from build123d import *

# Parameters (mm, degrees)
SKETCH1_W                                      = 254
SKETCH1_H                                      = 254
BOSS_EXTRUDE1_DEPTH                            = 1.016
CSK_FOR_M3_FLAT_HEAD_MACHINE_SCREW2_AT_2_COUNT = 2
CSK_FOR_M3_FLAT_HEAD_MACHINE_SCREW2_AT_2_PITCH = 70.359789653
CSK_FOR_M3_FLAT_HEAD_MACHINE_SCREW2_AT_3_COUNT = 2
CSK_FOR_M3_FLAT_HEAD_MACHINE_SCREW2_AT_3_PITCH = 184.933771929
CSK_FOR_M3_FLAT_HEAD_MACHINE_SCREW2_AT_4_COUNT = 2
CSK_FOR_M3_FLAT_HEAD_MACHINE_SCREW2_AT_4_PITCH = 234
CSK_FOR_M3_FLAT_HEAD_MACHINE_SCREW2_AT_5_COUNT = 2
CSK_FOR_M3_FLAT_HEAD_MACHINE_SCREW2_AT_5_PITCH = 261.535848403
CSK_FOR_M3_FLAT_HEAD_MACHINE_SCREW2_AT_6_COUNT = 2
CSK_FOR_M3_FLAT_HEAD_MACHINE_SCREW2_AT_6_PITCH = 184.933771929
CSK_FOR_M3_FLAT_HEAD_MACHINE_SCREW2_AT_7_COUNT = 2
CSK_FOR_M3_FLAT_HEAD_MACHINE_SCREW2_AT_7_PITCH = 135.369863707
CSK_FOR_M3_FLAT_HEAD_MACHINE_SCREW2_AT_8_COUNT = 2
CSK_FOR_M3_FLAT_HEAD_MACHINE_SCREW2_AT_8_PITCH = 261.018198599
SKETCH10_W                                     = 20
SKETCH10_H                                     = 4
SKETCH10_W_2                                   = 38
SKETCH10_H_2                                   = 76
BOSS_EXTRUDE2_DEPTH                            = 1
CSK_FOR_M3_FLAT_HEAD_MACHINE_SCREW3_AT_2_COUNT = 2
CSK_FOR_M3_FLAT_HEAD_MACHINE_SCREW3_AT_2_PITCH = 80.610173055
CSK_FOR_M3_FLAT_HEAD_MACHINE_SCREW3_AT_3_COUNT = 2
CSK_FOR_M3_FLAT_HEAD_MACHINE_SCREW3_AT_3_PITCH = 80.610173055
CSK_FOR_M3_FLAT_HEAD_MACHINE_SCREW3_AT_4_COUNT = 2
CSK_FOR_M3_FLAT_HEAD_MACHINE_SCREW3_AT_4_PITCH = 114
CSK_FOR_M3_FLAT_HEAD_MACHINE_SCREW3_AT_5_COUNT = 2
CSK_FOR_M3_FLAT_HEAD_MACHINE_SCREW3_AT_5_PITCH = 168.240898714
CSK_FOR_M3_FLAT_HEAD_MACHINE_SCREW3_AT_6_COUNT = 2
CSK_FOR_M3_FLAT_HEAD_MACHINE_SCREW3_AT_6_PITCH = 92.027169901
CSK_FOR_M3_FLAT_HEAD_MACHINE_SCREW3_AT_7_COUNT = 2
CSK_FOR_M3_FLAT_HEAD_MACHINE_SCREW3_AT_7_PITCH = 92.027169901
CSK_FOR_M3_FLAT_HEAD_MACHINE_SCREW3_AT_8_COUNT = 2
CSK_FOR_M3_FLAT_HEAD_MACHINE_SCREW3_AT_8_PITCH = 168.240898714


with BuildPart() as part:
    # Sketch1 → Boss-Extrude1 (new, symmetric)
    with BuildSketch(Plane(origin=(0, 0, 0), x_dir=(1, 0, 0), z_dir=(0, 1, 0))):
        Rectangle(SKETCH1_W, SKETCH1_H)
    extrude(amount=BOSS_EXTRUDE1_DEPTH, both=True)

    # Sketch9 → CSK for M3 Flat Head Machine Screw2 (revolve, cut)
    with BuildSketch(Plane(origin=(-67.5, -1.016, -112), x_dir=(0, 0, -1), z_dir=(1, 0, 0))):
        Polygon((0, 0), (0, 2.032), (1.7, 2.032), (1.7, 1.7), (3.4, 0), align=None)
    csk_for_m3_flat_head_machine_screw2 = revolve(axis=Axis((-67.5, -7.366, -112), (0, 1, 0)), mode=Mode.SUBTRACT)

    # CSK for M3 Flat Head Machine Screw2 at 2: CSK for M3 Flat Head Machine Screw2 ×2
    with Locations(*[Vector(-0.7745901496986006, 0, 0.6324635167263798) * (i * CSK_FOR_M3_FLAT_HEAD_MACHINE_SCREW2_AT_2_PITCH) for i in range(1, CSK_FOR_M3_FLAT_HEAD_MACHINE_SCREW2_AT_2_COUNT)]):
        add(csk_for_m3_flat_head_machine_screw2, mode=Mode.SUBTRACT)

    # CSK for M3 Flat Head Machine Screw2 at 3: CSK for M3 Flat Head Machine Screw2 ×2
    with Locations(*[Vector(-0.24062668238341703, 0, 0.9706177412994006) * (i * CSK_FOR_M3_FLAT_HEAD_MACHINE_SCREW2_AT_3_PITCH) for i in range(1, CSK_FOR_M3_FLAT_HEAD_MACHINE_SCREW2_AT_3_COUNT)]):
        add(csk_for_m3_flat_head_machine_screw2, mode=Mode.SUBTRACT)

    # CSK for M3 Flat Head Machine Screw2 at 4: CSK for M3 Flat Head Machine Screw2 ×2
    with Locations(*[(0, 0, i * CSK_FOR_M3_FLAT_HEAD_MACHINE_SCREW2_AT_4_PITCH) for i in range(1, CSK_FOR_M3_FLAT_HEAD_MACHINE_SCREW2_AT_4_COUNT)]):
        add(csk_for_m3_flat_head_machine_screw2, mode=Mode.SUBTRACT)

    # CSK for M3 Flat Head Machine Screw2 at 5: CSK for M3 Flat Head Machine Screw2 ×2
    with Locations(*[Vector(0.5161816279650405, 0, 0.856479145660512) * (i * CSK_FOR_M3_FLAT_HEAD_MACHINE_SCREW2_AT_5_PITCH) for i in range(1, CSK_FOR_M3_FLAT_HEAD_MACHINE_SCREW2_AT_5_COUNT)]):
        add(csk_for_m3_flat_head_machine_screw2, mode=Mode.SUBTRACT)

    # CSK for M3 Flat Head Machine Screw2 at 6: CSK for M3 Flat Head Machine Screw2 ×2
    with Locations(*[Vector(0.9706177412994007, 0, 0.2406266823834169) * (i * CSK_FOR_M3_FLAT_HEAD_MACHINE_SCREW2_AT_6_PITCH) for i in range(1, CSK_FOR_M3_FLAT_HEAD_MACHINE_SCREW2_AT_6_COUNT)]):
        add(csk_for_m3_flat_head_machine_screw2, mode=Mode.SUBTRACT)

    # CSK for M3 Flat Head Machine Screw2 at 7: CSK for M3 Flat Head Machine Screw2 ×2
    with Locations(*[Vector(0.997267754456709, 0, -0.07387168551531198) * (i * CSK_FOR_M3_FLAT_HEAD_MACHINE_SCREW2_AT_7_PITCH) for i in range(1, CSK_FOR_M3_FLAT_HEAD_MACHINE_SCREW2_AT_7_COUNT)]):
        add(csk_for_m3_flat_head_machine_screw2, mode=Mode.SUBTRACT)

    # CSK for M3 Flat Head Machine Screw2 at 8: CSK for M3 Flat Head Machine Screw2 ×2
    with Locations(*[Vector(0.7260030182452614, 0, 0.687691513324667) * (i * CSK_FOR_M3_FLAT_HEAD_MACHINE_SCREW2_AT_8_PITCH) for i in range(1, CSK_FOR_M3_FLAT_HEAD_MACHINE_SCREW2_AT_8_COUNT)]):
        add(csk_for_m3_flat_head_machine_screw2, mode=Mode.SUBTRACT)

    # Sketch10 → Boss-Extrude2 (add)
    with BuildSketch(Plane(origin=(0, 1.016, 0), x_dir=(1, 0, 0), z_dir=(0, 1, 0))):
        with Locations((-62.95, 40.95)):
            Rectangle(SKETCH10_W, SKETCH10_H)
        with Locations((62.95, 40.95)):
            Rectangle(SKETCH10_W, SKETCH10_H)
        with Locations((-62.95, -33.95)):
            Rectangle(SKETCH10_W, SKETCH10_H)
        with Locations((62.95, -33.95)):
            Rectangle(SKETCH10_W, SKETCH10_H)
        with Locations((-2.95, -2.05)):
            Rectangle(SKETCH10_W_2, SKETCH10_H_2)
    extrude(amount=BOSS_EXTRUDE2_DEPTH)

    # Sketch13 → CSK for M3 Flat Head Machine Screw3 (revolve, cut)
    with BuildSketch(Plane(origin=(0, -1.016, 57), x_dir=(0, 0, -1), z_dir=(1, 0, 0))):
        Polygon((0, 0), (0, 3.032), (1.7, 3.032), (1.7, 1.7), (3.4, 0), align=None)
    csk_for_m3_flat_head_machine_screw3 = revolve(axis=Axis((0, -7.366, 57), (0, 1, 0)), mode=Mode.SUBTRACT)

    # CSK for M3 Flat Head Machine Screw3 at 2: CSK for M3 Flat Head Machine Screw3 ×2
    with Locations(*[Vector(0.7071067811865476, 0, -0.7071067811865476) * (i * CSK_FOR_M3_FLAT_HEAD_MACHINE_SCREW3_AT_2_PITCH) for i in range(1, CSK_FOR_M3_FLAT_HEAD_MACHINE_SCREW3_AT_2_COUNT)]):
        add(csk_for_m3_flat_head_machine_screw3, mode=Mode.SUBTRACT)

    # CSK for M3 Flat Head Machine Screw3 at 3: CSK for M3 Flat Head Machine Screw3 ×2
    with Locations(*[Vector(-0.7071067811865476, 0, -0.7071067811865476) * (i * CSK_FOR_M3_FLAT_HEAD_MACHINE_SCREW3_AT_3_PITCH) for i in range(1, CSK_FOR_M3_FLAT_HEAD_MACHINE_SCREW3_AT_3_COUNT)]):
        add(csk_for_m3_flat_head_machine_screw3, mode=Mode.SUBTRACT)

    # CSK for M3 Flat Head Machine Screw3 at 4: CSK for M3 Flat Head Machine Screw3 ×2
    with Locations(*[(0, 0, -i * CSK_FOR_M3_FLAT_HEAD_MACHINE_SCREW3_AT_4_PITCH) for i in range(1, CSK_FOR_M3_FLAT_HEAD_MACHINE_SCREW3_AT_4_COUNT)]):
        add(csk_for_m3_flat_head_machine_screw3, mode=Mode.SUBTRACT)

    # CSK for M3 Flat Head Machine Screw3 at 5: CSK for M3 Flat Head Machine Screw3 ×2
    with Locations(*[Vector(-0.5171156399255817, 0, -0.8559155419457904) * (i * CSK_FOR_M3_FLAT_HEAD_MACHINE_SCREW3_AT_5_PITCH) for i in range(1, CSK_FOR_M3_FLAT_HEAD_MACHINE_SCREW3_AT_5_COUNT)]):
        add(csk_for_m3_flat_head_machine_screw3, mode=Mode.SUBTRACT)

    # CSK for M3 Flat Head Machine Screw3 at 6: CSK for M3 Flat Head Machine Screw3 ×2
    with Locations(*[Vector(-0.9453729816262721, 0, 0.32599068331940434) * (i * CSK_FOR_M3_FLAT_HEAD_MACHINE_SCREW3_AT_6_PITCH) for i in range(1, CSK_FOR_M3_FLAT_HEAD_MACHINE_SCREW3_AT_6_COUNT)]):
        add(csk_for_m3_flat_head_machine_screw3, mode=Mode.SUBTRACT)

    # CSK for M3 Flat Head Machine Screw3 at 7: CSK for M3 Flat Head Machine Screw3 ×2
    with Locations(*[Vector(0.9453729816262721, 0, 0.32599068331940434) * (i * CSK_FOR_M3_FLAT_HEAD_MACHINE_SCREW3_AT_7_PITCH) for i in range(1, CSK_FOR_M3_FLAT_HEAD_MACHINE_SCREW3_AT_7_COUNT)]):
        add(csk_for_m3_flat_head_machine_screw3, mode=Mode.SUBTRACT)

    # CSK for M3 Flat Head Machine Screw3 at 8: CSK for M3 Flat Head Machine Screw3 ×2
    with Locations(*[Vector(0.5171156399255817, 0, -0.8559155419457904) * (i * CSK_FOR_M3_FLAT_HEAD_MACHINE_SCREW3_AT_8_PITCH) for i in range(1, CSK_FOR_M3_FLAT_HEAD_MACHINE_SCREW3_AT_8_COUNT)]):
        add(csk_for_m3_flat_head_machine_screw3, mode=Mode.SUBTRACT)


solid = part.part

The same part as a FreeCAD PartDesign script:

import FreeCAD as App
import Part
import Sketcher

V = App.Vector
Q = App.Units.Quantity


def add_polygon(sketch, points):
    """Adds a closed chain of lines whose ends are joined by coincident constraints."""
    first, n = sketch.GeometryCount, len(points)
    for a, b in zip(points, points[1:] + points[:1]):
        sketch.addGeometry(Part.LineSegment(App.Vector(*a, 0), App.Vector(*b, 0)), False)
    for i in range(n):
        sketch.addConstraint(Sketcher.Constraint("Coincident", first + i, 2, first + (i + 1) % n, 1))

doc = App.newDocument("Part")
body = doc.addObject("PartDesign::Body", "Body")

sketch1 = body.newObject("Sketcher::SketchObject", "Sketch")
sketch1.AttachmentSupport = (doc.getObject("XZ_Plane"), [""])
sketch1.MapMode = "FlatFace"
add_polygon(sketch1, [(-127, -127), (-127, 127), (127, 127), (127, -127)])
sketch1.addConstraint([
    Sketcher.Constraint("Vertical", 0),
    Sketcher.Constraint("Horizontal", 1),
    Sketcher.Constraint("Vertical", 2),
    Sketcher.Constraint("Horizontal", 3),
    Sketcher.Constraint("Symmetric", 0, 2, 2, 2, -1, 1),
    Sketcher.Constraint("Equal", 3, 0),
    Sketcher.Constraint("DistanceX", 1, 1, 1, 2, 254.0),
])
pad1 = body.newObject("PartDesign::Pad", "Pad")
pad1.Profile = sketch1
pad1.Length = 2.032
pad1.Midplane = True

sketch2 = body.newObject("Sketcher::SketchObject", "Sketch001")
sketch2.AttachmentSupport = (doc.getObject("YZ_Plane"), [""])
sketch2.MapMode = "FlatFace"
sketch2.AttachmentOffset = App.Placement(V(0, 0, -67.5), App.Rotation())
add_polygon(sketch2, [(1.02, -112), (-1.02, -112), (-1.02, -115.4), (0.68, -113.7), (1.02, -113.7)])
sketch2.addGeometry(Part.LineSegment(V(-1.02, -112, 0), V(1.02, -112, 0)), True)
sketch2.addConstraint([
    Sketcher.Constraint("Horizontal", 0),
    Sketcher.Constraint("Vertical", 1),
    Sketcher.Constraint("Horizontal", 3),
    Sketcher.Constraint("Vertical", 4),
    Sketcher.Constraint("Horizontal", 5),
    Sketcher.Constraint("Coincident", 5, 1, 0, 2),
    Sketcher.Constraint("Vertical", 3, 2, 5, 2),
    Sketcher.Constraint("Angle", 2, Q("45 deg")),
    Sketcher.Constraint("DistanceY", 1, 2, 1, 1, 3.4),
    Sketcher.Constraint("DistanceY", 4, 1, 4, 2, 1.7),
    Sketcher.Constraint("DistanceY", 0, 2, -1, 1, 112.0),
    Sketcher.Constraint("DistanceX", 0, 2, 0, 1, 2.032),
    Sketcher.Constraint("DistanceX", 0, 2, -1, 1, 1.016),
])
groove = body.newObject("PartDesign::Groove", "Groove")
groove.Profile = sketch2
groove.ReferenceAxis = (sketch2, ["Axis0"])
groove.Angle = 360
doc.recompute()

datumline = body.newObject("PartDesign::Line", "DatumLine")
datumline.Placement = App.Placement(V(0, 0, 0), App.Rotation(V(0, 0, 1), V(-0.77459015, 0, 0.632463517)))
linearpattern = body.newObject("PartDesign::LinearPattern", "LinearPattern")
linearpattern.Originals = [groove]
linearpattern.Direction = (datumline, [""])
linearpattern.Mode = "offset"
linearpattern.Offset = 70.35979
linearpattern.Occurrences = 2
body.Tip = linearpattern
doc.recompute()

datumline2 = body.newObject("PartDesign::Line", "DatumLine001")
datumline2.Placement = App.Placement(V(0, 0, 0), App.Rotation(V(0, 0, 1), V(-0.240626682, 0, 0.970617741)))
linearpattern2 = body.newObject("PartDesign::LinearPattern", "LinearPattern001")
linearpattern2.Originals = [groove]
linearpattern2.Direction = (datumline2, [""])
linearpattern2.Mode = "offset"
linearpattern2.Offset = 184.933772
linearpattern2.Occurrences = 2
body.Tip = linearpattern2
doc.recompute()

linearpattern3 = body.newObject("PartDesign::LinearPattern", "LinearPattern002")
linearpattern3.Originals = [groove]
linearpattern3.Direction = (doc.getObject("Z_Axis"), [""])
linearpattern3.Mode = "offset"
linearpattern3.Offset = 234
linearpattern3.Occurrences = 2
body.Tip = linearpattern3
doc.recompute()

datumline3 = body.newObject("PartDesign::Line", "DatumLine002")
datumline3.Placement = App.Placement(V(0, 0, 0), App.Rotation(V(0, 0, 1), V(0.516181628, 0, 0.856479146)))
linearpattern4 = body.newObject("PartDesign::LinearPattern", "LinearPattern003")
linearpattern4.Originals = [groove]
linearpattern4.Direction = (datumline3, [""])
linearpattern4.Mode = "offset"
linearpattern4.Offset = 261.535848
linearpattern4.Occurrences = 2
body.Tip = linearpattern4
doc.recompute()

datumline4 = body.newObject("PartDesign::Line", "DatumLine003")
datumline4.Placement = App.Placement(V(0, 0, 0), App.Rotation(V(0, 0, 1), V(0.970617741, 0, 0.240626682)))
linearpattern5 = body.newObject("PartDesign::LinearPattern", "LinearPattern004")
linearpattern5.Originals = [groove]
linearpattern5.Direction = (datumline4, [""])
linearpattern5.Mode = "offset"
linearpattern5.Offset = 184.933772
linearpattern5.Occurrences = 2
body.Tip = linearpattern5
doc.recompute()

datumline5 = body.newObject("PartDesign::Line", "DatumLine004")
datumline5.Placement = App.Placement(V(0, 0, 0), App.Rotation(V(0, 0, 1), V(0.997267754, 0, -0.073871686)))
linearpattern6 = body.newObject("PartDesign::LinearPattern", "LinearPattern005")
linearpattern6.Originals = [groove]
linearpattern6.Direction = (datumline5, [""])
linearpattern6.Mode = "offset"
linearpattern6.Offset = 135.369864
linearpattern6.Occurrences = 2
body.Tip = linearpattern6
doc.recompute()

datumline6 = body.newObject("PartDesign::Line", "DatumLine005")
datumline6.Placement = App.Placement(V(0, 0, 0), App.Rotation(V(0, 0, 1), V(0.726003018, 0, 0.687691513)))
linearpattern7 = body.newObject("PartDesign::LinearPattern", "LinearPattern006")
linearpattern7.Originals = [groove]
linearpattern7.Direction = (datumline6, [""])
linearpattern7.Mode = "offset"
linearpattern7.Offset = 261.018199
linearpattern7.Occurrences = 2
body.Tip = linearpattern7

sketch3 = body.newObject("Sketcher::SketchObject", "Sketch002")
sketch3.AttachmentSupport = (doc.getObject("XZ_Plane"), [""])
sketch3.MapMode = "FlatFace"
sketch3.AttachmentOffset = App.Placement(V(0, 0, -1.016), App.Rotation())
add_polygon(sketch3, [(-73, -43), (-73, -39), (-53, -39), (-53, -43)])
add_polygon(sketch3, [(53, -43), (53, -39), (73, -39), (73, -43)])
add_polygon(sketch3, [(-73, 31.9), (-73, 36), (-53, 36), (-53, 31.9)])
add_polygon(sketch3, [(53, 31.9), (53, 36), (73, 36), (73, 31.9)])
add_polygon(sketch3, [(-21.9, -36), (-21.9, 40), (16.1, 40), (16.1, -36)])
sketch3.addConstraint([
    Sketcher.Constraint("Vertical", 0),
    Sketcher.Constraint("Horizontal", 1),
    Sketcher.Constraint("Vertical", 2),
    Sketcher.Constraint("Horizontal", 3),
    Sketcher.Constraint("Vertical", 4),
    Sketcher.Constraint("Horizontal", 5),
    Sketcher.Constraint("Vertical", 6),
    Sketcher.Constraint("Horizontal", 7),
    Sketcher.Constraint("Vertical", 8),
    Sketcher.Constraint("Horizontal", 9),
    Sketcher.Constraint("Vertical", 10),
    Sketcher.Constraint("Horizontal", 11),
    Sketcher.Constraint("Vertical", 12),
    Sketcher.Constraint("Horizontal", 13),
    Sketcher.Constraint("Vertical", 14),
    Sketcher.Constraint("Horizontal", 15),
    Sketcher.Constraint("Vertical", 16),
    Sketcher.Constraint("Horizontal", 17),
    Sketcher.Constraint("Vertical", 18),
    Sketcher.Constraint("Horizontal", 19),
    Sketcher.Constraint("Symmetric", 1, 2, 4, 2, -2),
    Sketcher.Constraint("Symmetric", 3, 2, 6, 2, -2),
    Sketcher.Constraint("Symmetric", 9, 2, 12, 2, -2),
    Sketcher.Constraint("Symmetric", 11, 2, 14, 2, -2),
    Sketcher.Constraint("Vertical", 3, 2, 8, 2),
    Sketcher.Constraint("Vertical", 2, 2, 9, 2),
    Sketcher.Constraint("Equal", 6, 8),
    Sketcher.Constraint("DistanceX", 1, 1, 1, 2, 20.0),
    Sketcher.Constraint("DistanceX", 17, 1, 17, 2, 38.0),
    Sketcher.Constraint("DistanceY", 0, 1, 0, 2, 4.0),
    Sketcher.Constraint("DistanceY", 16, 1, 16, 2, 76.0),
    Sketcher.Constraint("DistanceX", 9, 2, 16, 2, 31.0),
    Sketcher.Constraint("DistanceY", 4, 2, 18, 2, 3.0),
    Sketcher.Constraint("DistanceX", 1, 2, 4, 2, 105.9),
    Sketcher.Constraint("DistanceY", 0, 2, 8, 2, 74.9),
    Sketcher.Constraint("DistanceY", 0, 2, -1, 1, 38.95),
])
pad2 = body.newObject("PartDesign::Pad", "Pad001")
pad2.Profile = sketch3
pad2.Length = 1
pad2.Reversed = True

sketch4 = body.newObject("Sketcher::SketchObject", "Sketch003")
sketch4.AttachmentSupport = (doc.getObject("YZ_Plane"), [""])
sketch4.MapMode = "FlatFace"
add_polygon(sketch4, [(2, 57), (-1, 57), (-1, 53.6), (0.7, 55.3), (2, 55.3)])
sketch4.addGeometry(Part.LineSegment(V(-1, 57, 0), V(2, 57, 0)), True)
sketch4.addConstraint([
    Sketcher.Constraint("Horizontal", 0),
    Sketcher.Constraint("Vertical", 1),
    Sketcher.Constraint("Horizontal", 3),
    Sketcher.Constraint("Vertical", 4),
    Sketcher.Constraint("Horizontal", 5),
    Sketcher.Constraint("Coincident", 5, 1, 0, 2),
    Sketcher.Constraint("Vertical", 3, 2, 5, 2),
    Sketcher.Constraint("Angle", 2, Q("45 deg")),
    Sketcher.Constraint("DistanceY", 1, 2, 1, 1, 3.4),
    Sketcher.Constraint("DistanceY", 4, 1, 4, 2, 1.7),
    Sketcher.Constraint("DistanceY", -1, 1, 0, 2, 57.0),
    Sketcher.Constraint("DistanceX", 0, 2, 0, 1, 3.032),
    Sketcher.Constraint("DistanceX", 0, 2, -1, 1, 1.016),
])
groove2 = body.newObject("PartDesign::Groove", "Groove001")
groove2.Profile = sketch4
groove2.ReferenceAxis = (sketch4, ["Axis0"])
groove2.Angle = 360
doc.recompute()

datumline7 = body.newObject("PartDesign::Line", "DatumLine006")
datumline7.Placement = App.Placement(V(0, 0, 0), App.Rotation(V(0, 0, 1), V(0.707106781, 0, -0.707106781)))
linearpattern8 = body.newObject("PartDesign::LinearPattern", "LinearPattern007")
linearpattern8.Originals = [groove2]
linearpattern8.Direction = (datumline7, [""])
linearpattern8.Mode = "offset"
linearpattern8.Offset = 80.610173
linearpattern8.Occurrences = 2
body.Tip = linearpattern8
doc.recompute()

datumline8 = body.newObject("PartDesign::Line", "DatumLine007")
datumline8.Placement = App.Placement(V(0, 0, 0), App.Rotation(V(0, 0, 1), V(-0.707106781, 0, -0.707106781)))
linearpattern9 = body.newObject("PartDesign::LinearPattern", "LinearPattern008")
linearpattern9.Originals = [groove2]
linearpattern9.Direction = (datumline8, [""])
linearpattern9.Mode = "offset"
linearpattern9.Offset = 80.610173
linearpattern9.Occurrences = 2
body.Tip = linearpattern9
doc.recompute()

linearpattern10 = body.newObject("PartDesign::LinearPattern", "LinearPattern009")
linearpattern10.Originals = [groove2]
linearpattern10.Direction = (doc.getObject("Z_Axis"), [""])
linearpattern10.Mode = "offset"
linearpattern10.Offset = 114
linearpattern10.Occurrences = 2
linearpattern10.Reversed = True
body.Tip = linearpattern10
doc.recompute()

datumline9 = body.newObject("PartDesign::Line", "DatumLine008")
datumline9.Placement = App.Placement(V(0, 0, 0), App.Rotation(V(0, 0, 1), V(-0.51711564, 0, -0.855915542)))
linearpattern11 = body.newObject("PartDesign::LinearPattern", "LinearPattern010")
linearpattern11.Originals = [groove2]
linearpattern11.Direction = (datumline9, [""])
linearpattern11.Mode = "offset"
linearpattern11.Offset = 168.240899
linearpattern11.Occurrences = 2
body.Tip = linearpattern11
doc.recompute()

datumline10 = body.newObject("PartDesign::Line", "DatumLine009")
datumline10.Placement = App.Placement(V(0, 0, 0), App.Rotation(V(0, 0, 1), V(-0.945372982, 0, 0.325990683)))
linearpattern12 = body.newObject("PartDesign::LinearPattern", "LinearPattern011")
linearpattern12.Originals = [groove2]
linearpattern12.Direction = (datumline10, [""])
linearpattern12.Mode = "offset"
linearpattern12.Offset = 92.02717
linearpattern12.Occurrences = 2
body.Tip = linearpattern12
doc.recompute()

datumline11 = body.newObject("PartDesign::Line", "DatumLine010")
datumline11.Placement = App.Placement(V(0, 0, 0), App.Rotation(V(0, 0, 1), V(0.945372982, 0, 0.325990683)))
linearpattern13 = body.newObject("PartDesign::LinearPattern", "LinearPattern012")
linearpattern13.Originals = [groove2]
linearpattern13.Direction = (datumline11, [""])
linearpattern13.Mode = "offset"
linearpattern13.Offset = 92.02717
linearpattern13.Occurrences = 2
body.Tip = linearpattern13
doc.recompute()

datumline12 = body.newObject("PartDesign::Line", "DatumLine011")
datumline12.Placement = App.Placement(V(0, 0, 0), App.Rotation(V(0, 0, 1), V(0.51711564, 0, -0.855915542)))
linearpattern14 = body.newObject("PartDesign::LinearPattern", "LinearPattern013")
linearpattern14.Originals = [groove2]
linearpattern14.Direction = (datumline12, [""])
linearpattern14.Mode = "offset"
linearpattern14.Offset = 168.240899
linearpattern14.Occurrences = 2
body.Tip = linearpattern14

doc.recompute()
